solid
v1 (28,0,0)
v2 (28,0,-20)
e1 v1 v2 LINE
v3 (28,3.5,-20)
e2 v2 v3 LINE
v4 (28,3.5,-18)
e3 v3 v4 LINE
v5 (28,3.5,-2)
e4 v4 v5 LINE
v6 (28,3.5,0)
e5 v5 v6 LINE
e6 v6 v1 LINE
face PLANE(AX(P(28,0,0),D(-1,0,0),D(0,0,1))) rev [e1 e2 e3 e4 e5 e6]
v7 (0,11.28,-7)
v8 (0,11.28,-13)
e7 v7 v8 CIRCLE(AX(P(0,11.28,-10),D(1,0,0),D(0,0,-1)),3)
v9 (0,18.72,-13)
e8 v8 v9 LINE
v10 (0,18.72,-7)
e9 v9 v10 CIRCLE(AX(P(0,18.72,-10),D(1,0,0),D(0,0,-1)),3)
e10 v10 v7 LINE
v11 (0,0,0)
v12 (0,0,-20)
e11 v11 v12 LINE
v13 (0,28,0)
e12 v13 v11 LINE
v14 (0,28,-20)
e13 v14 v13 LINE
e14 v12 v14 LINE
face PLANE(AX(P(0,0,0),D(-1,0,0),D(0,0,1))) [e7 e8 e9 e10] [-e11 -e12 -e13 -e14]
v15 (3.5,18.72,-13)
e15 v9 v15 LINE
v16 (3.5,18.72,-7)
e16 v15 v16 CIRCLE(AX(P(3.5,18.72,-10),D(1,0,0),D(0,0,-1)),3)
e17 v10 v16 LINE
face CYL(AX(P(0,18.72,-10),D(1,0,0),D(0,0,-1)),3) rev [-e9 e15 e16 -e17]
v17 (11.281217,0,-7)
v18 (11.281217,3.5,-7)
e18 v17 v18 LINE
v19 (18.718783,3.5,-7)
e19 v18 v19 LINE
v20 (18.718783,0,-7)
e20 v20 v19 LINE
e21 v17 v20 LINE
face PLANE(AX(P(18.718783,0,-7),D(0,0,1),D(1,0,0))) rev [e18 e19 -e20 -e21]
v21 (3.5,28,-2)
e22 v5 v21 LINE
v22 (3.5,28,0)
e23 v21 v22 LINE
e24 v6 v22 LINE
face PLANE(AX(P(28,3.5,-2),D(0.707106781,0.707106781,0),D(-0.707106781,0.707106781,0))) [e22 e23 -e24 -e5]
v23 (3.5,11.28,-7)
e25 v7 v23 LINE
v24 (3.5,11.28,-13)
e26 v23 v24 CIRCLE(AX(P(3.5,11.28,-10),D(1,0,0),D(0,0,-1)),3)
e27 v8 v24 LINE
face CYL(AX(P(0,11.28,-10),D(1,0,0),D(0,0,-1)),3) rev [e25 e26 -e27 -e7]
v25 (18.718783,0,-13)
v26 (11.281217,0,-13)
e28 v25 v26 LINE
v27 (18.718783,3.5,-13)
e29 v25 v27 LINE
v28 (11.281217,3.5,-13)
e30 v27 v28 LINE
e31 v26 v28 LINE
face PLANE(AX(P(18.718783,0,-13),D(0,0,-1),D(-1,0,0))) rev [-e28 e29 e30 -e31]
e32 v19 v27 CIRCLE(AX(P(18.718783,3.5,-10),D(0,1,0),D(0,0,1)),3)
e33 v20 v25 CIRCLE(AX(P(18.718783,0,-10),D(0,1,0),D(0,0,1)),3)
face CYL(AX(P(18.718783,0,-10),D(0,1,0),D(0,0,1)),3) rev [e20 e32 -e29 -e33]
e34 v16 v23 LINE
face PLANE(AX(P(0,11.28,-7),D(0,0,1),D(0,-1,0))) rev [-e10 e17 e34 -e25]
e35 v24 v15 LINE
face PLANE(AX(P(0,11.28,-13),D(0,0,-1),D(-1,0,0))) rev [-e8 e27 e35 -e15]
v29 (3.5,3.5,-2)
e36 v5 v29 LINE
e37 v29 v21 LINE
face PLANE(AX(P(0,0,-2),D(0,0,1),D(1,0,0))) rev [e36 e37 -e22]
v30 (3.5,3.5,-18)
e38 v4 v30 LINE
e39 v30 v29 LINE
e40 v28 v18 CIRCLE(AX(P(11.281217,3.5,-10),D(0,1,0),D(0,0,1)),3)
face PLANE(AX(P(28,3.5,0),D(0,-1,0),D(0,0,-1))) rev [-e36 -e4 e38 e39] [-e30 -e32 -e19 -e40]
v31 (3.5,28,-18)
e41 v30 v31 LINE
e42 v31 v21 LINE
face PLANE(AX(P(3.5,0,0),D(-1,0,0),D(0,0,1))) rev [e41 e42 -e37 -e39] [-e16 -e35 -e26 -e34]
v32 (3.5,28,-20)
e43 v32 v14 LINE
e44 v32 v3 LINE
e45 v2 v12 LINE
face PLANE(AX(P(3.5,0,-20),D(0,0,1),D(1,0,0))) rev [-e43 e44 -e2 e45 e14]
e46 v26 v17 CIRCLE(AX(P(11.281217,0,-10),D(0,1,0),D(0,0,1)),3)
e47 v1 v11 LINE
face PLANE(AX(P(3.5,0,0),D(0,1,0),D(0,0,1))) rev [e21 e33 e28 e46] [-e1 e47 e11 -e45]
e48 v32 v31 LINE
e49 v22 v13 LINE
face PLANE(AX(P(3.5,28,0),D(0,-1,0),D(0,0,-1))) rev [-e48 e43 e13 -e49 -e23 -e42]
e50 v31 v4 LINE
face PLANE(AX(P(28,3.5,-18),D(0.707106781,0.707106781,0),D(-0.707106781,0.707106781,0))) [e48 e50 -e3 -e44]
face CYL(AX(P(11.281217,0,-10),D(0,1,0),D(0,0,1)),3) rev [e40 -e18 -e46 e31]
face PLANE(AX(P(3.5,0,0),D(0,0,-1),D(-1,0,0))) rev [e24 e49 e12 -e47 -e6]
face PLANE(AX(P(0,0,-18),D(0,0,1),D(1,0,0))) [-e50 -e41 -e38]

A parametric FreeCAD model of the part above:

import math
import FreeCAD as App
import Part
import Sketcher
Q = App.Units.Quantity


def add_polygon(sketch, points):
    """Adds a closed chain of lines whose ends are joined by coincident constraints."""
    first, n = sketch.GeometryCount, len(points)
    for a, b in zip(points, points[1:] + points[:1]):
        sketch.addGeometry(Part.LineSegment(App.Vector(*a, 0), App.Vector(*b, 0)), False)
    for i in range(n):
        sketch.addConstraint(Sketcher.Constraint("Coincident", first + i, 2, first + (i + 1) % n, 1))

doc = App.newDocument("Part")
params = doc.addObject("Spreadsheet::Sheet", "Params")
for row, (alias, value) in enumerate([
    ("sketch1_width", "28 mm"),
    ("sketch1_height", "20 mm"),
    ("pad1_length", "3.5 mm"),
    ("sketch2_height", "20 mm"),
    ("sketch2_width", "3.5 mm"),
    ("pad2_length", "24.5 mm"),
    ("sketch3_width", "28 mm"),
    ("sketch3_width2", "3.5 mm"),
    ("pad3_length", "2 mm"),
    ("sketch4_width", "28 mm"),
    ("sketch4_width2", "3.5 mm"),
    ("pad4_length", "2 mm"),
    ("sketch5_radius", "3 mm"),
    ("sketch6_radius", "3 mm"),
    ("sketch6_width", "7.44 mm"),
], start=1):
    params.set(f"A{row}", alias)
    params.set(f"B{row}", "=" + value)
    params.setAlias(f"B{row}", alias)

body = doc.addObject("PartDesign::Body", "Body")

# Sketch on YZ plane
sketch1 = body.newObject("Sketcher::SketchObject", "Sketch")
sketch1.AttachmentSupport = (doc.getObject("YZ_Plane"), [""])
sketch1.MapMode = "FlatFace"
add_polygon(sketch1, [(28, 0), (0, 0), (0, -20), (28, -20)])  # lines 0-3
sketch1.addConstraint([
    Sketcher.Constraint("Horizontal", 0),
    Sketcher.Constraint("Vertical", 1),
    Sketcher.Constraint("Horizontal", 2),
    Sketcher.Constraint("Vertical", 3),
    Sketcher.Constraint("Coincident", 0, 2, -1, 1),
    Sketcher.Constraint("DistanceX", 0, 2, 0, 1, Q("28 mm")),
    Sketcher.Constraint("DistanceY", 1, 2, 1, 1, Q("20 mm")),
])
sketch1.setExpression("Constraints[9]", "Params.sketch1_width")
sketch1.setExpression("Constraints[10]", "Params.sketch1_height")
pad1 = body.newObject("PartDesign::Pad", "Pad")
pad1.Profile = sketch1
pad1.setExpression("Length", "Params.pad1_length")

# Sketch on YZ plane
sketch2 = body.newObject("Sketcher::SketchObject", "Sketch001")
sketch2.AttachmentSupport = (doc.getObject("YZ_Plane"), [""])
sketch2.MapMode = "FlatFace"
sketch2.AttachmentOffset = App.Placement(App.Vector(0, 0, 3.5), App.Rotation())
add_polygon(sketch2, [(3.5, 0), (0, 0), (0, -20), (3.5, -20)])  # lines 0-3
sketch2.addConstraint([
    Sketcher.Constraint("Horizontal", 0),
    Sketcher.Constraint("Vertical", 1),
    Sketcher.Constraint("Horizontal", 2),
    Sketcher.Constraint("Vertical", 3),
    Sketcher.Constraint("Coincident", 0, 2, -1, 1),
    Sketcher.Constraint("DistanceY", 1, 2, 1, 1, Q("20 mm")),
    Sketcher.Constraint("DistanceX", 0, 2, 0, 1, Q("3.5 mm")),
])
sketch2.setExpression("Constraints[9]", "Params.sketch2_height")
sketch2.setExpression("Constraints[10]", "Params.sketch2_width")
pad2 = body.newObject("PartDesign::Pad", "Pad001")
pad2.Profile = sketch2
pad2.setExpression("Length", "Params.pad2_length")

# Sketch on XY plane
sketch3 = body.newObject("Sketcher::SketchObject", "Sketch002")
sketch3.AttachmentSupport = (doc.getObject("XY_Plane"), [""])
sketch3.MapMode = "FlatFace"
sketch3.AttachmentOffset = App.Placement(App.Vector(0, 0, -20), App.Rotation())
add_polygon(sketch3, [(28, 3.5), (28, 0), (0, 0), (0, 28), (3.5, 28)])  # lines 0-4
sketch3.addConstraint([
    Sketcher.Constraint("Vertical", 0),
    Sketcher.Constraint("Horizontal", 1),
    Sketcher.Constraint("Vertical", 2),
    Sketcher.Constraint("Horizontal", 3),
    Sketcher.Constraint("Coincident", 1, 2, -1, 1),
    Sketcher.Constraint("Equal", 3, 0),
    Sketcher.Constraint("Equal", 1, 2),
    Sketcher.Constraint("DistanceX", 1, 2, 1, 1, Q("28 mm")),
    Sketcher.Constraint("DistanceX", 3, 1, 3, 2, Q("3.5 mm")),
])
sketch3.setExpression("Constraints[12]", "Params.sketch3_width")
sketch3.setExpression("Constraints[13]", "Params.sketch3_width2")
pad3 = body.newObject("PartDesign::Pad", "Pad002")
pad3.Profile = sketch3
pad3.setExpression("Length", "Params.pad3_length")

# Sketch on XY plane
sketch4 = body.newObject("Sketcher::SketchObject", "Sketch003")
sketch4.AttachmentSupport = (doc.getObject("XY_Plane"), [""])
sketch4.MapMode = "FlatFace"
add_polygon(sketch4, [(3.5, 28), (0, 28), (0, 0), (28, 0), (28, 3.5)])  # lines 0-4
sketch4.addConstraint([
    Sketcher.Constraint("Horizontal", 0),
    Sketcher.Constraint("Vertical", 1),
    Sketcher.Constraint("Horizontal", 2),
    Sketcher.Constraint("Vertical", 3),
    Sketcher.Constraint("Coincident", 1, 2, -1, 1),
    Sketcher.Constraint("Equal", 2, 1),
    Sketcher.Constraint("Equal", 0, 3),
    Sketcher.Constraint("DistanceX", 2, 1, 2, 2, Q("28 mm")),
    Sketcher.Constraint("DistanceX", 0, 2, 0, 1, Q("3.5 mm")),
])
sketch4.setExpression("Constraints[12]", "Params.sketch4_width")
sketch4.setExpression("Constraints[13]", "Params.sketch4_width2")
pad4 = body.newObject("PartDesign::Pad", "Pad003")
pad4.Profile = sketch4
pad4.setExpression("Length", "Params.pad4_length")
pad4.Reversed = True

# Sketch on XZ plane
sketch5 = body.newObject("Sketcher::SketchObject", "Sketch004")
sketch5.AttachmentSupport = (doc.getObject("XZ_Plane"), [""])
sketch5.MapMode = "FlatFace"
sketch5.AttachmentOffset = App.Placement(App.Vector(0, 0, -3.5), App.Rotation())
sketch5.addGeometry([
    Part.LineSegment(App.Vector(11.3, -7, 0), App.Vector(18.7, -7, 0)),
    Part.ArcOfCircle(Part.Circle(App.Vector(18.7, -10, 0), App.Vector(0, 0, 1), 3), math.radians(-90), math.radians(90)),
    Part.LineSegment(App.Vector(18.7, -13, 0), App.Vector(11.3, -13, 0)),
    Part.ArcOfCircle(Part.Circle(App.Vector(11.3, -10, 0), App.Vector(0, 0, 1), 3), math.radians(90), math.radians(270)),
], False)
sketch5.addConstraint([
    Sketcher.Constraint("Tangent", 0, 2, 1, 2),
    Sketcher.Constraint("Tangent", 1, 1, 2, 1),
    Sketcher.Constraint("Tangent", 2, 2, 3, 2),
    Sketcher.Constraint("Tangent", 3, 1, 0, 1),
    Sketcher.Constraint("Horizontal", 0),
    Sketcher.Constraint("Horizontal", 2),
    Sketcher.Constraint("Radius", 1, Q("3 mm")),
    Sketcher.Constraint("DistanceY", 1, 3, -1, 1, Q("10 mm")),
    Sketcher.Constraint("DistanceX", 0, 1, 0, 2, Q("7.437565 mm")),
    Sketcher.Constraint("DistanceX", -1, 1, 1, 3, Q("18.718783 mm")),
])
sketch5.setExpression("Constraints[6]", "Params.sketch5_radius")
pocket1 = body.newObject("PartDesign::Pocket", "Pocket")
pocket1.Profile = sketch5
pocket1.Type = "ThroughAll"
pocket1.Reversed = True

# Sketch on YZ plane
sketch6 = body.newObject("Sketcher::SketchObject", "Sketch005")
sketch6.AttachmentSupport = (doc.getObject("YZ_Plane"), [""])
sketch6.MapMode = "FlatFace"
sketch6.AttachmentOffset = App.Placement(App.Vector(0, 0, 3.5), App.Rotation())
sketch6.addGeometry([
    Part.LineSegment(App.Vector(18.7, -7, 0), App.Vector(11.3, -7, 0)),
    Part.ArcOfCircle(Part.Circle(App.Vector(11.3, -10, 0), App.Vector(0, 0, 1), 3), math.radians(90), math.radians(270)),
    Part.LineSegment(App.Vector(11.3, -13, 0), App.Vector(18.7, -13, 0)),
    Part.ArcOfCircle(Part.Circle(App.Vector(18.7, -10, 0), App.Vector(0, 0, 1), 3), math.radians(-90), math.radians(90)),
], False)
sketch6.addConstraint([
    Sketcher.Constraint("Tangent", 0, 2, 1, 1),
    Sketcher.Constraint("Tangent", 1, 2, 2, 1),
    Sketcher.Constraint("Tangent", 2, 2, 3, 1),
    Sketcher.Constraint("Tangent", 3, 2, 0, 1),
    Sketcher.Constraint("Horizontal", 0),
    Sketcher.Constraint("Horizontal", 2),
    Sketcher.Constraint("Radius", 1, Q("3 mm")),
    Sketcher.Constraint("DistanceY", 1, 3, -1, 1, Q("10 mm")),
    Sketcher.Constraint("DistanceX", 0, 2, 0, 1, Q("7.44 mm")),
    Sketcher.Constraint("DistanceX", -1, 1, 1, 3, Q("11.28 mm")),
])
sketch6.setExpression("Constraints[6]", "Params.sketch6_radius")
sketch6.setExpression("Constraints[8]", "Params.sketch6_width")
pocket2 = body.newObject("PartDesign::Pocket", "Pocket001")
pocket2.Profile = sketch6
pocket2.Type = "ThroughAll"

doc.recompute()
